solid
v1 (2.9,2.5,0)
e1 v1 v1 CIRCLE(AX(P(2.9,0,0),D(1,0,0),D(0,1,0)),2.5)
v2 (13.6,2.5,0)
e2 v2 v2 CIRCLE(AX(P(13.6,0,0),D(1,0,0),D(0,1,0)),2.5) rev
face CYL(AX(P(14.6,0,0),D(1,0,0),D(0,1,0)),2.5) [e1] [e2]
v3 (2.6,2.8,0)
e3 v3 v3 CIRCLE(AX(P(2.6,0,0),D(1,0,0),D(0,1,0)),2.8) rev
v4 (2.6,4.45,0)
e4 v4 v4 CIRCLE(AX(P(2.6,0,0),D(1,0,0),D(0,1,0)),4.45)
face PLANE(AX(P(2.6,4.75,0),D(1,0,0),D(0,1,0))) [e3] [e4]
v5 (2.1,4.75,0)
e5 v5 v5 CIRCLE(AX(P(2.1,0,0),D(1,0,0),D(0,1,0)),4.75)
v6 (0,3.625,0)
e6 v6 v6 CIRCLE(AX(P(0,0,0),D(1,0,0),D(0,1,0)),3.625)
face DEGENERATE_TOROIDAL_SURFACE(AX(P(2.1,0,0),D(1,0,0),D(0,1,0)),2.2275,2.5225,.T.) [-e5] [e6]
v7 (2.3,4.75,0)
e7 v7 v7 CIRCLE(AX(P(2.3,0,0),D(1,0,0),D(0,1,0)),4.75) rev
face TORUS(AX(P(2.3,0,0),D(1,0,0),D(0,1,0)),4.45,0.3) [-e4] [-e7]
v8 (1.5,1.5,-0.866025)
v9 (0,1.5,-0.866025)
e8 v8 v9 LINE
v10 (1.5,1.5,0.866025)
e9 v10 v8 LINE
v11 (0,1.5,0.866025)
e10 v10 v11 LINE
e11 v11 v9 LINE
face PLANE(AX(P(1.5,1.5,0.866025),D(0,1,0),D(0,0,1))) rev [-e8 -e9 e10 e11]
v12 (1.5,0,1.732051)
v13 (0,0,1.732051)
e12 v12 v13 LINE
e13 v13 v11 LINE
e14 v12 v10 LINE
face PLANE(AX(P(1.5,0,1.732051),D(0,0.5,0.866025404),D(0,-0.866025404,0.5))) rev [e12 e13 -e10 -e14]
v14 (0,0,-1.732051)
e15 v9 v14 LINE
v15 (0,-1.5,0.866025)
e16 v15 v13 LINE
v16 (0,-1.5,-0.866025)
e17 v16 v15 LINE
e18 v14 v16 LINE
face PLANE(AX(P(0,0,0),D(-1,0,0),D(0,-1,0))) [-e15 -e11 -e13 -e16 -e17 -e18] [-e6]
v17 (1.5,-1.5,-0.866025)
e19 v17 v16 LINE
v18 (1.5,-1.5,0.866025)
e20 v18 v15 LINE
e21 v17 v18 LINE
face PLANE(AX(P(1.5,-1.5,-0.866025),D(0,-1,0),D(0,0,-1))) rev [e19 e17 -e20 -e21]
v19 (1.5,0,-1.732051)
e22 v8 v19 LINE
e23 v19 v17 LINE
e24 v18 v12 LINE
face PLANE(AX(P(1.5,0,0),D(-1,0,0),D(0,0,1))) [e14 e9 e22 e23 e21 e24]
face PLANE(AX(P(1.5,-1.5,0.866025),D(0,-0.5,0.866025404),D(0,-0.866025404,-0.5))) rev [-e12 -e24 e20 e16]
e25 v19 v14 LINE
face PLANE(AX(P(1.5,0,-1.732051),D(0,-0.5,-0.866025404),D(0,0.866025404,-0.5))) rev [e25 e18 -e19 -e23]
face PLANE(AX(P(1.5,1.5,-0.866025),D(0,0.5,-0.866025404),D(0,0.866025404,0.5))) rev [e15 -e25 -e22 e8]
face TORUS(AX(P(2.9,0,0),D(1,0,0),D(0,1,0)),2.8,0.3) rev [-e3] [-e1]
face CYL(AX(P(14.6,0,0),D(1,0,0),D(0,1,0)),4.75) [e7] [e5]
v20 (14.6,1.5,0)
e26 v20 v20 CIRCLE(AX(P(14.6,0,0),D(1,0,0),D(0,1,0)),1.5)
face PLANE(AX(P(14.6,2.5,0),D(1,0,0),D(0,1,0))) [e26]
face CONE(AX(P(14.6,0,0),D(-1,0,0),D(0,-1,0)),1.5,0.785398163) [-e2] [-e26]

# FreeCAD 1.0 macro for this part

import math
import FreeCAD as App
import Part
import Sketcher
from FreeCAD import Vector
Q = App.Units.Quantity


def edges_at(feature, points):
    """Names of the edges that pass closest to the given points."""
    edges = feature.Shape.Edges
    near = lambda p: min(range(len(edges)), key=lambda i: edges[i].distToShape(Part.Vertex(*p))[0])
    return sorted({f"Edge{near(p) + 1}" for p in points})

doc = App.newDocument("Part")
body = doc.addObject("PartDesign::Body", "Body")

sketch1 = body.newObject("Sketcher::SketchObject", "Sketch")
sketch1.AttachmentSupport = (doc.getObject("XY_Plane"), [""])
sketch1.MapMode = "FlatFace"
sketch1.addGeometry([
    Part.LineSegment(Vector(0, 3.6, 0), Vector(0, 0, 0)),
    Part.LineSegment(Vector(0, 0, 0), Vector(14.6, 0, 0)),
    Part.LineSegment(Vector(14.6, 0, 0), Vector(14.6, 2.5, 0)),
    Part.LineSegment(Vector(14.6, 2.5, 0), Vector(2.6, 2.5, 0)),
    Part.LineSegment(Vector(2.6, 2.5, 0), Vector(2.6, 4.8, 0)),
    Part.LineSegment(Vector(2.6, 4.8, 0), Vector(2.1, 4.8, 0)),
    Part.ArcOfCircle(Part.Circle(Vector(2.1, 2.2, 0), Vector(0, 0, 1), 2.5), math.radians(90), math.radians(146)),
], False)
sketch1.addConstraint([
    Sketcher.Constraint("Coincident", 0, 2, 1, 1),
    Sketcher.Constraint("Coincident", 1, 2, 2, 1),
    Sketcher.Constraint("Coincident", 2, 2, 3, 1),
    Sketcher.Constraint("Coincident", 3, 2, 4, 1),
    Sketcher.Constraint("Coincident", 4, 2, 5, 1),
    Sketcher.Constraint("Tangent", 5, 2, 6, 1),
    Sketcher.Constraint("Coincident", 6, 2, 0, 1),
    Sketcher.Constraint("Vertical", 0),
    Sketcher.Constraint("Horizontal", 1),
    Sketcher.Constraint("Vertical", 2),
    Sketcher.Constraint("Horizontal", 3),
    Sketcher.Constraint("Vertical", 4),
    Sketcher.Constraint("Horizontal", 5),
    Sketcher.Constraint("Coincident", 0, 2, -1, 1),
    Sketcher.Constraint("DistanceX", 3, 2, 3, 1, 12.0),
    Sketcher.Constraint("DistanceX", 1, 1, 1, 2, 14.6),
    Sketcher.Constraint("DistanceX", 5, 2, 5, 1, 0.5),
    Sketcher.Constraint("DistanceY", 2, 1, 2, 2, 2.5),
    Sketcher.Constraint("DistanceY", 4, 1, 4, 2, 2.25),
    Sketcher.Constraint("Radius", 6, 2.5225),
])
revolution = body.newObject("PartDesign::Revolution", "Revolution")
revolution.Profile = sketch1
revolution.ReferenceAxis = (sketch1, ["H_Axis"])
revolution.Angle = 360

sketch2 = body.newObject("Sketcher::SketchObject", "Sketch001")
sketch2.AttachmentSupport = (doc.getObject("YZ_Plane"), [""])
sketch2.MapMode = "FlatFace"
sketch2.addGeometry([
    Part.LineSegment(Vector(1.5, 0.9, 0), Vector(1.5, -0.9, 0)),
    Part.LineSegment(Vector(1.5, -0.9, 0), Vector(0, -1.7, 0)),
    Part.LineSegment(Vector(0, -1.7, 0), Vector(-1.5, -0.9, 0)),
    Part.LineSegment(Vector(-1.5, -0.9, 0), Vector(-1.5, 0.9, 0)),
    Part.LineSegment(Vector(-1.5, 0.9, 0), Vector(0, 1.7, 0)),
    Part.LineSegment(Vector(0, 1.7, 0), Vector(1.5, 0.9, 0)),
], False)
sketch2.addConstraint([
    Sketcher.Constraint("Coincident", 0, 2, 1, 1),
    Sketcher.Constraint("Coincident", 1, 2, 2, 1),
    Sketcher.Constraint("Coincident", 2, 2, 3, 1),
    Sketcher.Constraint("Coincident", 3, 2, 4, 1),
    Sketcher.Constraint("Coincident", 4, 2, 5, 1),
    Sketcher.Constraint("Coincident", 5, 2, 0, 1),
    Sketcher.Constraint("Vertical", 0),
    Sketcher.Constraint("Vertical", 3),
    Sketcher.Constraint("Symmetric", 0, 2, 3, 2, -1, 1),
    Sketcher.Constraint("Symmetric", 1, 2, 4, 2, -1, 1),
    Sketcher.Constraint("PointOnObject", 1, 2, -2),
    Sketcher.Constraint("Parallel", 2, 5),
    Sketcher.Constraint("Horizontal", 0, 2, 2, 2),
    Sketcher.Constraint("Angle", 1, Q("-150 deg")),
    Sketcher.Constraint("DistanceX", 2, 2, 0, 2, 3.0),
    Sketcher.Constraint("DistanceY", 0, 2, 0, 1, 1.732051),
])
pocket1 = body.newObject("PartDesign::Pocket", "Pocket")
pocket1.Profile = sketch2
pocket1.Length = 1.5
pocket1.Reversed = True
doc.recompute()

fillet = body.newObject("PartDesign::Fillet", "Fillet")
fillet.Base = (pocket1, edges_at(pocket1, [(2.6, -2.5, 0), (2.6, -4.75, 0)]))
fillet.Radius = 0.3
doc.recompute()

chamfer = body.newObject("PartDesign::Chamfer", "Chamfer")
chamfer.Base = (fillet, edges_at(fillet, [(14.6, -2.5, 0)]))
chamfer.Size = 1

doc.recompute()
